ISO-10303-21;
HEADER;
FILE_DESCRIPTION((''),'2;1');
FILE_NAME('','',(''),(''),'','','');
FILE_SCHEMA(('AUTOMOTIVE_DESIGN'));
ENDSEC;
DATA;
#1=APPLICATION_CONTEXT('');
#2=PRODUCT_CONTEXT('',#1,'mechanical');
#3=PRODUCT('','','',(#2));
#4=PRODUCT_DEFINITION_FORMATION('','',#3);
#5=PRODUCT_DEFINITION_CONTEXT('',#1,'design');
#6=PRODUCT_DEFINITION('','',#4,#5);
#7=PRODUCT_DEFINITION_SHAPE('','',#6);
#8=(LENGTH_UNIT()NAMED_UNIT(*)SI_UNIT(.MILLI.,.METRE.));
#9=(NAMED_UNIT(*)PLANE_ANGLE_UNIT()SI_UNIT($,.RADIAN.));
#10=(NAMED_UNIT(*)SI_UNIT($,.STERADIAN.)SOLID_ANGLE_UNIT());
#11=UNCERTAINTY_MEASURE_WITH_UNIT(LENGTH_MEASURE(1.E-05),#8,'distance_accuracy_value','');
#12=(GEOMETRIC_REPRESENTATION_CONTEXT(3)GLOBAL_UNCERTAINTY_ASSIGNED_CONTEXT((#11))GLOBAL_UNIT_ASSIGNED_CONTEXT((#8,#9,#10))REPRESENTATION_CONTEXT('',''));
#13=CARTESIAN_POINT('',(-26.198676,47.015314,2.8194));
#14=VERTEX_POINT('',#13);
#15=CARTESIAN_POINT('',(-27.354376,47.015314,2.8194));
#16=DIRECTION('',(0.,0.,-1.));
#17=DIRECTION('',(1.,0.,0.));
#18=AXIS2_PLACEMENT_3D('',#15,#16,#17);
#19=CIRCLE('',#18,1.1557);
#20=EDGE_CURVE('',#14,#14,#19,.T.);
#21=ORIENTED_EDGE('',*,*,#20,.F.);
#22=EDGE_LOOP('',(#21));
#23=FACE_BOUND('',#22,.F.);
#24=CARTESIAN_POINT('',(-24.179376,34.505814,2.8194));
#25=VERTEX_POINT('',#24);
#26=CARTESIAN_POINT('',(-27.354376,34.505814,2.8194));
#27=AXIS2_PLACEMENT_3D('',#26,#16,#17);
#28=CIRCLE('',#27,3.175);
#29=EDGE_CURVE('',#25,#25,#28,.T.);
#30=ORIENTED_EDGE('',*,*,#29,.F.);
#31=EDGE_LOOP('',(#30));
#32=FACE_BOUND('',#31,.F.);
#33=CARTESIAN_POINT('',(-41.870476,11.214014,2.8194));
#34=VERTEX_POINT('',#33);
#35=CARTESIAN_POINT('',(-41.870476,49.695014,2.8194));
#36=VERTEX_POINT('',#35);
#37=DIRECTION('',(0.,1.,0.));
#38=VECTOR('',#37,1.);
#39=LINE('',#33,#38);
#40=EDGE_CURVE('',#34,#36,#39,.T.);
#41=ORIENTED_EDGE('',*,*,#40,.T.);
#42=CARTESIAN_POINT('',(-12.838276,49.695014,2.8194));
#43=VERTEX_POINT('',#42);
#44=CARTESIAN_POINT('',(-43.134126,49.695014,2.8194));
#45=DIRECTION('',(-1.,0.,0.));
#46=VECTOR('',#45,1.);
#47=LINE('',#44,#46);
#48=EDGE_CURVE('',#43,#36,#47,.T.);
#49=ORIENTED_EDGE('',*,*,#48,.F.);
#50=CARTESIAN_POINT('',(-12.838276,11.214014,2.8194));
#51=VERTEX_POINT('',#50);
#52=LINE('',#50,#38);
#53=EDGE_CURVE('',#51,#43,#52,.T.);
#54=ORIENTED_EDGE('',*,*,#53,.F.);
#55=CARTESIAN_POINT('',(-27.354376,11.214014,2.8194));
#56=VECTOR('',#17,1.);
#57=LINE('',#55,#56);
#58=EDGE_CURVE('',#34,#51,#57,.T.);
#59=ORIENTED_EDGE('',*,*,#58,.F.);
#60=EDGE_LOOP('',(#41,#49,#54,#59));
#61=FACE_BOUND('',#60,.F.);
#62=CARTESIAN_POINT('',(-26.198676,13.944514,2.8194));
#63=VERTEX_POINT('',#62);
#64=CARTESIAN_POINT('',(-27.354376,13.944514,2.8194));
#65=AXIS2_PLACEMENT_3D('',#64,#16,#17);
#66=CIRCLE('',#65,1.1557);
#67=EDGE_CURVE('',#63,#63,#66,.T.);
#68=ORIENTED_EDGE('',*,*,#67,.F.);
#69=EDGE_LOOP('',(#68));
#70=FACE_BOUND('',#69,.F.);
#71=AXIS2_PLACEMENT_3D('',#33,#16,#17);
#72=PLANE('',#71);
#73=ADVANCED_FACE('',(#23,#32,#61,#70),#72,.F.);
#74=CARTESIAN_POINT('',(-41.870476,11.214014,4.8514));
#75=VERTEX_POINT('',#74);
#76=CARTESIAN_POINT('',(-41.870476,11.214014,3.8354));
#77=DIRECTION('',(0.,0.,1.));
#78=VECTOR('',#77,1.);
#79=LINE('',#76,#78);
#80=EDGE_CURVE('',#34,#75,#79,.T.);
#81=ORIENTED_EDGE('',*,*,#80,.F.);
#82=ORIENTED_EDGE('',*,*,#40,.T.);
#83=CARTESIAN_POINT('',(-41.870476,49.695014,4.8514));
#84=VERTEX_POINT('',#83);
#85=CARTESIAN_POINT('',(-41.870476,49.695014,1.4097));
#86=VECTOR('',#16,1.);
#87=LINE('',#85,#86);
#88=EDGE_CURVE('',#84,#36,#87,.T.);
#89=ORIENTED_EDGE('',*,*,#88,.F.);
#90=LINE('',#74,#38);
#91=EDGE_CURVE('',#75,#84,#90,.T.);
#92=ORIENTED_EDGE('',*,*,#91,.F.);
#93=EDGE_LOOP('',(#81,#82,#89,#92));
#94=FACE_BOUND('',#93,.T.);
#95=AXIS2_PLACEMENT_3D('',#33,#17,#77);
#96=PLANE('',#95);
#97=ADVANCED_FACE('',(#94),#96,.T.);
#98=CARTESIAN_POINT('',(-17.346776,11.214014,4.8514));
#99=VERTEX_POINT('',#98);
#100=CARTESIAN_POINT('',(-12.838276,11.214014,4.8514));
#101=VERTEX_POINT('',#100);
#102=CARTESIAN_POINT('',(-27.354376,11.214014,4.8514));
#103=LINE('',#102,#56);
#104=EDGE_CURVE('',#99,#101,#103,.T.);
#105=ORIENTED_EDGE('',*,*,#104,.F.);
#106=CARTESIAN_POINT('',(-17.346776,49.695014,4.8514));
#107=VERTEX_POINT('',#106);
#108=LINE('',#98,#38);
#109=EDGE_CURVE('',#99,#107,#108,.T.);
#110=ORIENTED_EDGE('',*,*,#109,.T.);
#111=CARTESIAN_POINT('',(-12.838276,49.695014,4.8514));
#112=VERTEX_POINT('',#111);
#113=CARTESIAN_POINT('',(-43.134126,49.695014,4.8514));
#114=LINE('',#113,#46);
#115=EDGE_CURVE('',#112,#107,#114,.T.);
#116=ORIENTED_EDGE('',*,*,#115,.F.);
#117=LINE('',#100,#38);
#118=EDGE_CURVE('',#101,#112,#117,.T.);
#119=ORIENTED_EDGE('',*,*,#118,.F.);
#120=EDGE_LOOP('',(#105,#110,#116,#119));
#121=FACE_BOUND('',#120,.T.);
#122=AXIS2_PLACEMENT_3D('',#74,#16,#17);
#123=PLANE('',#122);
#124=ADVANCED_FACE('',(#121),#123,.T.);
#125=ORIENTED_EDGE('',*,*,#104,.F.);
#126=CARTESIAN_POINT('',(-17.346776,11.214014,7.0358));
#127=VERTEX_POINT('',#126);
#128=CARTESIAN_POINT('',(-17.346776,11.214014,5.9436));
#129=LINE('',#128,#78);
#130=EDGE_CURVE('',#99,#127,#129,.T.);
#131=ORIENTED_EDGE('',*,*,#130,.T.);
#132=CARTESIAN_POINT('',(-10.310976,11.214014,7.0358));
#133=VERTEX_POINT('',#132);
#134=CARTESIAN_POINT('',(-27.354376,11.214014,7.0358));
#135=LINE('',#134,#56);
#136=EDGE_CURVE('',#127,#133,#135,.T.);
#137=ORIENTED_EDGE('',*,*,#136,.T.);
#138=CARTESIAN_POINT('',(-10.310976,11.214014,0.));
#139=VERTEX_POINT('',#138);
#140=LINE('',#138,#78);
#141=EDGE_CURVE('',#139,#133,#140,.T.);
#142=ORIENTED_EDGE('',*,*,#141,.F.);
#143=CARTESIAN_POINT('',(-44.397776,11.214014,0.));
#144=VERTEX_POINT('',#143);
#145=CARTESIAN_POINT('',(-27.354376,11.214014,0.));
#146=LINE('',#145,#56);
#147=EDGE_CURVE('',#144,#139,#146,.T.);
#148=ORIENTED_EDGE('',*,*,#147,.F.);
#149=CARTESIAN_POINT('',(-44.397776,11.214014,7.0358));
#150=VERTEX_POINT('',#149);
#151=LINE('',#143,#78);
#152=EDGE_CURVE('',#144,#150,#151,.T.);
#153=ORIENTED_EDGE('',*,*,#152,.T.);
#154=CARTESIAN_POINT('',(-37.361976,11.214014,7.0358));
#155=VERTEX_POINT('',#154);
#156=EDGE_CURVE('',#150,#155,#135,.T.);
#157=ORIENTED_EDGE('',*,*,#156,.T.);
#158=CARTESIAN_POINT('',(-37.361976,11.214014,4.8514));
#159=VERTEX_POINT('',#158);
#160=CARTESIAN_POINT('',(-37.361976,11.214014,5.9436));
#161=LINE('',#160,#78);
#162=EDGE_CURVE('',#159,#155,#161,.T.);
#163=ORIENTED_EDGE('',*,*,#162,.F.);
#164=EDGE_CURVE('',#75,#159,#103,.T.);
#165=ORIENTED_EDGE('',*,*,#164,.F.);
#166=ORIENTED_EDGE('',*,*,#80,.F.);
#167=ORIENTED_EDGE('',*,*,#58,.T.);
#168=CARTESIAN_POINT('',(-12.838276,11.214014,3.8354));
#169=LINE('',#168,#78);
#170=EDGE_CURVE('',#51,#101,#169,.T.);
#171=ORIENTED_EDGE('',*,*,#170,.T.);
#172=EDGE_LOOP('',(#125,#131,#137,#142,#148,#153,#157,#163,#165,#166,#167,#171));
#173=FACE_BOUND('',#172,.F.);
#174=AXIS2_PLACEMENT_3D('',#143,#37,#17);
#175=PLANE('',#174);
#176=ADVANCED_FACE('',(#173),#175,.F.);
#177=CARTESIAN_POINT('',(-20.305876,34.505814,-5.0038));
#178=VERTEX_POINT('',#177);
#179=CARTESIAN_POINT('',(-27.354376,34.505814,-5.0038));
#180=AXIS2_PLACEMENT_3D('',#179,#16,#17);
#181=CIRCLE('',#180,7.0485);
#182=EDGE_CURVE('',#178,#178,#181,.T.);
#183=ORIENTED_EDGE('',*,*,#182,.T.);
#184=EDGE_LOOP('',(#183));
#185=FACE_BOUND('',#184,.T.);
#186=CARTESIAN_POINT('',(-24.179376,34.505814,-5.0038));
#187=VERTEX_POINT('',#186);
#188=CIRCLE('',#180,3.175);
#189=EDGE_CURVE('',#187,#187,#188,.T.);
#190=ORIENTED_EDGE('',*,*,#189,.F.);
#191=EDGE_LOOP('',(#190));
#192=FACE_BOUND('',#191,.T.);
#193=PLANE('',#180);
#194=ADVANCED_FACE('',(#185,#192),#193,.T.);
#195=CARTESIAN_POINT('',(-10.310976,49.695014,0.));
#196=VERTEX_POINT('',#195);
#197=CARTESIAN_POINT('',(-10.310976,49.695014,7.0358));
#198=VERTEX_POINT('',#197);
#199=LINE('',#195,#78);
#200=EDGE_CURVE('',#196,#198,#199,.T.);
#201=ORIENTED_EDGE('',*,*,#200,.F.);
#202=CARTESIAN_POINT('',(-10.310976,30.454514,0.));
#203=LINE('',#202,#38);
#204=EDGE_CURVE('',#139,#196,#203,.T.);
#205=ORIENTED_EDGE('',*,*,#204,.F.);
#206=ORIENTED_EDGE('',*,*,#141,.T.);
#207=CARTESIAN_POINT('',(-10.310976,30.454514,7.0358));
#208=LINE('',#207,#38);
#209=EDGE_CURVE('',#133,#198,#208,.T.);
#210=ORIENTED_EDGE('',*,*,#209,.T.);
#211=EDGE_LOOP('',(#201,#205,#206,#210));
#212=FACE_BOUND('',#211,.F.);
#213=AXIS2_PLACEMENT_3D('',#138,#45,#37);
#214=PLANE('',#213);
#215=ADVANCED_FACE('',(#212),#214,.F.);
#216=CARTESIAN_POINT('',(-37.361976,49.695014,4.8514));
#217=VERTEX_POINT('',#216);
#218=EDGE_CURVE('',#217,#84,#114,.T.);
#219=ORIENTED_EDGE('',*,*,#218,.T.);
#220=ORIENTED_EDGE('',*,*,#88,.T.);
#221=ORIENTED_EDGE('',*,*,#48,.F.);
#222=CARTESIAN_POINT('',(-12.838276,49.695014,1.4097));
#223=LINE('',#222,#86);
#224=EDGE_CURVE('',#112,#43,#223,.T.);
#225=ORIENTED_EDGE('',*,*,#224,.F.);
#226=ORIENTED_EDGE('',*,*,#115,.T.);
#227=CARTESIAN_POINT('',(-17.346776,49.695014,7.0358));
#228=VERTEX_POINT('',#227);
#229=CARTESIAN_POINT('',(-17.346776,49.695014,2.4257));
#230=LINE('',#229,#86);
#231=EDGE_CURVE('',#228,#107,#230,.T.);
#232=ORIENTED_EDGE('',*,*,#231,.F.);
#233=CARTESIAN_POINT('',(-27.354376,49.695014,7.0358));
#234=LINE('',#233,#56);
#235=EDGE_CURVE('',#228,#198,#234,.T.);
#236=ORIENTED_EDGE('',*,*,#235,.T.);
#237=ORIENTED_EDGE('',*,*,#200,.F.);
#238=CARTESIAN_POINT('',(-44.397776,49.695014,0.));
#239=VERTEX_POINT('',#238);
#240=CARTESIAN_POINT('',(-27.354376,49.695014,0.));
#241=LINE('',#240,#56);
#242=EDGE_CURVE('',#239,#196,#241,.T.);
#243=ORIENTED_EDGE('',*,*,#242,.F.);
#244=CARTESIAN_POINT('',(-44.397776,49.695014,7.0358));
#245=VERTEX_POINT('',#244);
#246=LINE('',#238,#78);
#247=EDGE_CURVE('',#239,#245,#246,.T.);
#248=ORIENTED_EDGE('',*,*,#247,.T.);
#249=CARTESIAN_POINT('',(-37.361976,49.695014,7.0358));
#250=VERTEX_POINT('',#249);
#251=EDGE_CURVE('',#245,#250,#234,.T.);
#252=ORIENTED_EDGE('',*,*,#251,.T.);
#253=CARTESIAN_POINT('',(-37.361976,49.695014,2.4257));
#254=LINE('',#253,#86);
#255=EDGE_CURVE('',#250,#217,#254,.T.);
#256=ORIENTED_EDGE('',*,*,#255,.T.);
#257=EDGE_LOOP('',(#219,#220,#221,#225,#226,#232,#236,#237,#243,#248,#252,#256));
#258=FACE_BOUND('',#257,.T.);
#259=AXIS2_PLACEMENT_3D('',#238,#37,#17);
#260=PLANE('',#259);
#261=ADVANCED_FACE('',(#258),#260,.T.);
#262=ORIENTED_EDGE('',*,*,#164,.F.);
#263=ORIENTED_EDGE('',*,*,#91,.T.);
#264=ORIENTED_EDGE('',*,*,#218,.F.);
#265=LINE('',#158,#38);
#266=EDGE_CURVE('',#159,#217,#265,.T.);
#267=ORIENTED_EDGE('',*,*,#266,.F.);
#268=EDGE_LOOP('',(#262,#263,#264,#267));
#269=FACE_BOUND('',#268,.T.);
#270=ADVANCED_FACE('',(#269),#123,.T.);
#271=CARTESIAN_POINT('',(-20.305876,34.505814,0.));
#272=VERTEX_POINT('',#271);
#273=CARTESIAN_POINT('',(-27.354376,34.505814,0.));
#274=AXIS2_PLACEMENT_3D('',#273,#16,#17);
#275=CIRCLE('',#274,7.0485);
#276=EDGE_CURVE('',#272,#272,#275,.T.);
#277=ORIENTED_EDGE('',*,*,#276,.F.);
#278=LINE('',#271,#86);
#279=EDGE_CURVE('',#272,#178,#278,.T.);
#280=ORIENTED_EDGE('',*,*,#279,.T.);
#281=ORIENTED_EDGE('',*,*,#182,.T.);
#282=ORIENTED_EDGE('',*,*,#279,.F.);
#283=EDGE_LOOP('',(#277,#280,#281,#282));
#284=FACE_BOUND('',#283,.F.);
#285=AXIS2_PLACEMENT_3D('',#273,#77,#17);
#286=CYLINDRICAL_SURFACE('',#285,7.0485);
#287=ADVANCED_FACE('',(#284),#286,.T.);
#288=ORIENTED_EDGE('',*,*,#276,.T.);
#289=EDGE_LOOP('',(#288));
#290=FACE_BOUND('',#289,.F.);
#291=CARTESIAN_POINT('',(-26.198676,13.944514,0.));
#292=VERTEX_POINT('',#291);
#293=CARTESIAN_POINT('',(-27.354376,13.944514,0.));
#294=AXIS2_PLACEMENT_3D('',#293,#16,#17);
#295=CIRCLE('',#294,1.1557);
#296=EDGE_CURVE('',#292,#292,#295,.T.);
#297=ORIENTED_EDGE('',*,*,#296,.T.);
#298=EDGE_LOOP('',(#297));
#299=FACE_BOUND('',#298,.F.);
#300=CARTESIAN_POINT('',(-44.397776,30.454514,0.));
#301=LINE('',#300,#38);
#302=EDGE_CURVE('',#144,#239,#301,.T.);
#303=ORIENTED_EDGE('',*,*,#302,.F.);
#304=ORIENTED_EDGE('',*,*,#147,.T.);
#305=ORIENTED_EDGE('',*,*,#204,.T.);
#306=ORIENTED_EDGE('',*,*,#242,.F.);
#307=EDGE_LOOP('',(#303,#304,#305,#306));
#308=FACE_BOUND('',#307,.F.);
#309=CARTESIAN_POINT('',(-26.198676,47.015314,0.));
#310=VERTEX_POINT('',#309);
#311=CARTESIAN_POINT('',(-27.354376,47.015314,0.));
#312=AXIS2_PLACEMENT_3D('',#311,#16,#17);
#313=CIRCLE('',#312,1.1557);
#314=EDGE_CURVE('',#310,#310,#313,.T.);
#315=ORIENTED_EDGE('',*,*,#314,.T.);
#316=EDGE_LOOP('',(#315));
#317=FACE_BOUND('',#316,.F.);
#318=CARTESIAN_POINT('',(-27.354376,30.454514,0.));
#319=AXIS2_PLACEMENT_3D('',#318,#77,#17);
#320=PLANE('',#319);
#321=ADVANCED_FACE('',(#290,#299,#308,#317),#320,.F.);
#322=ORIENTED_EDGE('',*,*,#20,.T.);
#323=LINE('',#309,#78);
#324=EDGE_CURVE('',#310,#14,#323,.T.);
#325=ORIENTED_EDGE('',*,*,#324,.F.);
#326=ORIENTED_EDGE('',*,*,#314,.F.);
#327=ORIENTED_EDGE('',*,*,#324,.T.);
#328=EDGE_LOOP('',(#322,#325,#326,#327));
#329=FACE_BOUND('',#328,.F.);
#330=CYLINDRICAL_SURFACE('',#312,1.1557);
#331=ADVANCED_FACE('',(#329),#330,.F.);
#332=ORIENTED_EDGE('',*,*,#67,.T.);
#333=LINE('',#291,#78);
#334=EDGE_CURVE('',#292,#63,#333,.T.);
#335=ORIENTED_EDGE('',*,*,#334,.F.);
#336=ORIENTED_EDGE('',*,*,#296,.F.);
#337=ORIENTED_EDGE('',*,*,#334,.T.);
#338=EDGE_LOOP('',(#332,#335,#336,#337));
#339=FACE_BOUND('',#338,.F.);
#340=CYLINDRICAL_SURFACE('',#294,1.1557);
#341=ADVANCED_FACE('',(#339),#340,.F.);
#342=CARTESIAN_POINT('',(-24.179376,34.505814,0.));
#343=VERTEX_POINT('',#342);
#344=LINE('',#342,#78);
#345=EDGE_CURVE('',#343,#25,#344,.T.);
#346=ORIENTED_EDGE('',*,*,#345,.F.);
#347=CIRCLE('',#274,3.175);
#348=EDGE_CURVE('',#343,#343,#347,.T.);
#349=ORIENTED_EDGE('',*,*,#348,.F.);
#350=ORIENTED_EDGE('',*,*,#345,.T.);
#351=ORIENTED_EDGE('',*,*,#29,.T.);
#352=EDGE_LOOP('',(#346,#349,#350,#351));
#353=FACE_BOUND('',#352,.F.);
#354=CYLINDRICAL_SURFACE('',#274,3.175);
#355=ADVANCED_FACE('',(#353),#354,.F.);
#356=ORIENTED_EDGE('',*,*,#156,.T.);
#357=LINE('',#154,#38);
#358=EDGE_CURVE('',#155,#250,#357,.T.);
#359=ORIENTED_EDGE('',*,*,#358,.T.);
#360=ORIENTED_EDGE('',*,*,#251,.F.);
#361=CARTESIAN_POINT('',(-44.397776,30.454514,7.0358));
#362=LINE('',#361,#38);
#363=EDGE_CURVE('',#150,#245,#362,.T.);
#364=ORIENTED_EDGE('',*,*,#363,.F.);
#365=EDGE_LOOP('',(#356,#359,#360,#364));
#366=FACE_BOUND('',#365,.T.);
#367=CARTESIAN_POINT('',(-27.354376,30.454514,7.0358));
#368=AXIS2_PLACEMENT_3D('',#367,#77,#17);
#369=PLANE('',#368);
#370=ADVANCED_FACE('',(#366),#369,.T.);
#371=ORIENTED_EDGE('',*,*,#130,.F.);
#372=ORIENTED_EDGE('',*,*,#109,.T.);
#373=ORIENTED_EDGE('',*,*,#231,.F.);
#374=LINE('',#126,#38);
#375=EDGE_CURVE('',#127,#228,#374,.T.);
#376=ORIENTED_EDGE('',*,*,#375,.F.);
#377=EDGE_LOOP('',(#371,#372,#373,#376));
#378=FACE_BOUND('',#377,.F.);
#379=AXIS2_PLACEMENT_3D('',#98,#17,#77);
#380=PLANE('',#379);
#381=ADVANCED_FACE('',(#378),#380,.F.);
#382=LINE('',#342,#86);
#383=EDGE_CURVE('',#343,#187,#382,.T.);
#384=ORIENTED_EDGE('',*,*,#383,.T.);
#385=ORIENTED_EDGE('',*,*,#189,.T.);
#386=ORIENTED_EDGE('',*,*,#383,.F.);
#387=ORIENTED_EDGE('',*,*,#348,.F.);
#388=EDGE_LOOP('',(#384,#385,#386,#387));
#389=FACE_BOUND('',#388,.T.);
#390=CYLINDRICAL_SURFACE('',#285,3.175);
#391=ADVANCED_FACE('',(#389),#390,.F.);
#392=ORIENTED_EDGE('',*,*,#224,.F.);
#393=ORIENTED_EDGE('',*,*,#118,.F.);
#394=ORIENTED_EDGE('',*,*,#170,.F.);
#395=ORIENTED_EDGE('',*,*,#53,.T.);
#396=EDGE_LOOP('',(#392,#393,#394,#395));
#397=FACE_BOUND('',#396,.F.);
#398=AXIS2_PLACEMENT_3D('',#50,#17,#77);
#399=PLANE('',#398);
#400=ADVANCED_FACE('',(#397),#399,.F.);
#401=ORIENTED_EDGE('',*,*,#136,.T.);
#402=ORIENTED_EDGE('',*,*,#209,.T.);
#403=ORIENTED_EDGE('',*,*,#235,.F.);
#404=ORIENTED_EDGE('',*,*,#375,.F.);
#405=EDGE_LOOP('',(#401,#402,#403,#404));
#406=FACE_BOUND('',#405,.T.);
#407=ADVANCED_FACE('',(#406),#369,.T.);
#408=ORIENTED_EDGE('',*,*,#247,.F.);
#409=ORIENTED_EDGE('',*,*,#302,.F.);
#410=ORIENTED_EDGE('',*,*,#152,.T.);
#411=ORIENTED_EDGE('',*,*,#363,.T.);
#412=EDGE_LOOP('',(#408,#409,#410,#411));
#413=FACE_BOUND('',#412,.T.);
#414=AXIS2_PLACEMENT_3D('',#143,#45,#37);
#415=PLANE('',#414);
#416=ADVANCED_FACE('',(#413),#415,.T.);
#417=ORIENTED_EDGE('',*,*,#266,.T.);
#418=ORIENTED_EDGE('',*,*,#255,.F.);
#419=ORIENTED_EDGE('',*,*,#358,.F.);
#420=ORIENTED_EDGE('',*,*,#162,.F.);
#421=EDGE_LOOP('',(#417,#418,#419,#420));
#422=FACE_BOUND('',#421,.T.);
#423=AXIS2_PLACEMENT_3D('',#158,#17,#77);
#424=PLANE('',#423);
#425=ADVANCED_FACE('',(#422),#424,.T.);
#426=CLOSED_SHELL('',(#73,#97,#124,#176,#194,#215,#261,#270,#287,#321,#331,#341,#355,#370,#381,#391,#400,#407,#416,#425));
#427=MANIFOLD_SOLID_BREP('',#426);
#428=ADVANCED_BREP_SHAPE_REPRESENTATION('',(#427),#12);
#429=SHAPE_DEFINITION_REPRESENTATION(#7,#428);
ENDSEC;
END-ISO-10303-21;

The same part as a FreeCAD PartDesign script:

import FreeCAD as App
import Part
import Sketcher
Q = App.Units.Quantity


def add_polygon(sketch, points):
    """Adds a closed chain of lines whose ends are joined by coincident constraints."""
    first, n = sketch.GeometryCount, len(points)
    for a, b in zip(points, points[1:] + points[:1]):
        sketch.addGeometry(Part.LineSegment(App.Vector(*a, 0), App.Vector(*b, 0)), False)
    for i in range(n):
        sketch.addConstraint(Sketcher.Constraint("Coincident", first + i, 2, first + (i + 1) % n, 1))

doc = App.newDocument("Part")
body = doc.addObject("PartDesign::Body", "Body")

# Sketch on XY plane
sketch1 = body.newObject("Sketcher::SketchObject", "Sketch")
sketch1.AttachmentSupport = (doc.getObject("XY_Plane"), [""])
sketch1.MapMode = "FlatFace"
add_polygon(sketch1, [(-44, 50), (-44, 11), (-10, 11), (-10, 50)])  # lines 0-3
sketch1.addConstraint([
    Sketcher.Constraint("Vertical", 0),
    Sketcher.Constraint("Horizontal", 1),
    Sketcher.Constraint("Vertical", 2),
    Sketcher.Constraint("Horizontal", 3),
    Sketcher.Constraint("DistanceX", 1, 1, 1, 2, Q("1.342 in")),
    Sketcher.Constraint("DistanceY", 0, 2, 0, 1, Q("1.515 in")),
    Sketcher.Constraint("DistanceX", 0, 2, -1, 1, 44.397776),
    Sketcher.Constraint("DistanceY", -1, 1, 0, 2, 11.214014),
])
pad1 = body.newObject("PartDesign::Pad", "Pad")
pad1.Profile = sketch1
pad1.Length = Q("0.277 in")

# Sketch on XZ plane
sketch2 = body.newObject("Sketcher::SketchObject", "Sketch001")
sketch2.AttachmentSupport = (doc.getObject("XZ_Plane"), [""])
sketch2.MapMode = "FlatFace"
sketch2.AttachmentOffset = App.Placement(App.Vector(0, 0, -11.214014), App.Rotation())
add_polygon(sketch2, [(-37.4, 7), (-37.4, 4.9), (-17.3, 4.9), (-17.3, 7)])  # lines 0-3
sketch2.addConstraint([
    Sketcher.Constraint("Vertical", 0),
    Sketcher.Constraint("Horizontal", 1),
    Sketcher.Constraint("Vertical", 2),
    Sketcher.Constraint("Horizontal", 3),
    Sketcher.Constraint("DistanceX", 1, 1, 1, 2, Q("0.788 in")),
    Sketcher.Constraint("DistanceY", 0, 2, 0, 1, Q("0.086 in")),
    Sketcher.Constraint("DistanceY", -1, 1, 0, 2, Q("0.191 in")),
    Sketcher.Constraint("DistanceX", 0, 2, -1, 1, 37.361976),
])
pocket1 = body.newObject("PartDesign::Pocket", "Pocket")
pocket1.Profile = sketch2
pocket1.Type = "ThroughAll"

# Sketch on XZ plane
sketch3 = body.newObject("Sketcher::SketchObject", "Sketch002")
sketch3.AttachmentSupport = (doc.getObject("XZ_Plane"), [""])
sketch3.MapMode = "FlatFace"
sketch3.AttachmentOffset = App.Placement(App.Vector(0, 0, -11.214014), App.Rotation())
add_polygon(sketch3, [(-41.9, 4.9), (-41.9, 2.8), (-12.8, 2.8), (-12.8, 4.9)])  # lines 0-3
sketch3.addConstraint([
    Sketcher.Constraint("Vertical", 0),
    Sketcher.Constraint("Horizontal", 1),
    Sketcher.Constraint("Vertical", 2),
    Sketcher.Constraint("Horizontal", 3),
    Sketcher.Constraint("DistanceY", 0, 2, 0, 1, Q("0.08 in")),
    Sketcher.Constraint("DistanceX", 1, 1, 1, 2, Q("1.143 in")),
    Sketcher.Constraint("DistanceY", -1, 1, 0, 2, Q("0.111 in")),
    Sketcher.Constraint("DistanceX", 0, 2, -1, 1, 41.870476),
])
pocket2 = body.newObject("PartDesign::Pocket", "Pocket001")
pocket2.Profile = sketch3
pocket2.Type = "ThroughAll"

# Sketch on XY plane
sketch4 = body.newObject("Sketcher::SketchObject", "Sketch003")
sketch4.AttachmentSupport = (doc.getObject("XY_Plane"), [""])
sketch4.MapMode = "FlatFace"
sketch4.addGeometry([
    Part.Circle(App.Vector(-27.4, 13.9, 0), App.Vector(0, 0, 1), 1.2),
    Part.Circle(App.Vector(-27.4, 34.5, 0), App.Vector(0, 0, 1), 3.2),
    Part.Circle(App.Vector(-27.4, 47, 0), App.Vector(0, 0, 1), 1.2),
], False)
sketch4.addConstraint([
    Sketcher.Constraint("Equal", 0, 2),
    Sketcher.Constraint("Vertical", 0, 3, 1, 3),
    Sketcher.Constraint("Vertical", 1, 3, 2, 3),
    Sketcher.Constraint("Diameter", 1, Q("0.25 in")),
    Sketcher.Constraint("Diameter", 0, Q("0.091 in")),
    Sketcher.Constraint("DistanceY", 0, 3, 2, 3, Q("1.302 in")),
    Sketcher.Constraint("DistanceY", 0, 3, 1, 3, Q("0.8095 in")),
    Sketcher.Constraint("DistanceX", 0, 3, -1, 1, 27.354376),
    Sketcher.Constraint("DistanceY", -1, 1, 0, 3, 13.944514),
])
pocket3 = body.newObject("PartDesign::Pocket", "Pocket002")
pocket3.Profile = sketch4
pocket3.Length = Q("1 in")
pocket3.Reversed = True

# Sketch on XY plane
sketch5 = body.newObject("Sketcher::SketchObject", "Sketch004")
sketch5.AttachmentSupport = (doc.getObject("XY_Plane"), [""])
sketch5.MapMode = "FlatFace"
sketch5.addGeometry([
    Part.Circle(App.Vector(-27.4, 34.5, 0), App.Vector(0, 0, 1), 7),
    Part.Circle(App.Vector(-27.4, 34.5, 0), App.Vector(0, 0, 1), 3.2),
], False)
sketch5.addConstraint([
    Sketcher.Constraint("Coincident", 1, 3, 0, 3),
    Sketcher.Constraint("Diameter", 1, Q("0.25 in")),
    Sketcher.Constraint("Diameter", 0, Q("0.555 in")),
    Sketcher.Constraint("DistanceX", 0, 3, -1, 1, 27.354376),
    Sketcher.Constraint("DistanceY", -1, 1, 0, 3, 34.505814),
])
pad2 = body.newObject("PartDesign::Pad", "Pad001")
pad2.Profile = sketch5
pad2.Length = Q("0.197 in")
pad2.Reversed = True

doc.recompute()
